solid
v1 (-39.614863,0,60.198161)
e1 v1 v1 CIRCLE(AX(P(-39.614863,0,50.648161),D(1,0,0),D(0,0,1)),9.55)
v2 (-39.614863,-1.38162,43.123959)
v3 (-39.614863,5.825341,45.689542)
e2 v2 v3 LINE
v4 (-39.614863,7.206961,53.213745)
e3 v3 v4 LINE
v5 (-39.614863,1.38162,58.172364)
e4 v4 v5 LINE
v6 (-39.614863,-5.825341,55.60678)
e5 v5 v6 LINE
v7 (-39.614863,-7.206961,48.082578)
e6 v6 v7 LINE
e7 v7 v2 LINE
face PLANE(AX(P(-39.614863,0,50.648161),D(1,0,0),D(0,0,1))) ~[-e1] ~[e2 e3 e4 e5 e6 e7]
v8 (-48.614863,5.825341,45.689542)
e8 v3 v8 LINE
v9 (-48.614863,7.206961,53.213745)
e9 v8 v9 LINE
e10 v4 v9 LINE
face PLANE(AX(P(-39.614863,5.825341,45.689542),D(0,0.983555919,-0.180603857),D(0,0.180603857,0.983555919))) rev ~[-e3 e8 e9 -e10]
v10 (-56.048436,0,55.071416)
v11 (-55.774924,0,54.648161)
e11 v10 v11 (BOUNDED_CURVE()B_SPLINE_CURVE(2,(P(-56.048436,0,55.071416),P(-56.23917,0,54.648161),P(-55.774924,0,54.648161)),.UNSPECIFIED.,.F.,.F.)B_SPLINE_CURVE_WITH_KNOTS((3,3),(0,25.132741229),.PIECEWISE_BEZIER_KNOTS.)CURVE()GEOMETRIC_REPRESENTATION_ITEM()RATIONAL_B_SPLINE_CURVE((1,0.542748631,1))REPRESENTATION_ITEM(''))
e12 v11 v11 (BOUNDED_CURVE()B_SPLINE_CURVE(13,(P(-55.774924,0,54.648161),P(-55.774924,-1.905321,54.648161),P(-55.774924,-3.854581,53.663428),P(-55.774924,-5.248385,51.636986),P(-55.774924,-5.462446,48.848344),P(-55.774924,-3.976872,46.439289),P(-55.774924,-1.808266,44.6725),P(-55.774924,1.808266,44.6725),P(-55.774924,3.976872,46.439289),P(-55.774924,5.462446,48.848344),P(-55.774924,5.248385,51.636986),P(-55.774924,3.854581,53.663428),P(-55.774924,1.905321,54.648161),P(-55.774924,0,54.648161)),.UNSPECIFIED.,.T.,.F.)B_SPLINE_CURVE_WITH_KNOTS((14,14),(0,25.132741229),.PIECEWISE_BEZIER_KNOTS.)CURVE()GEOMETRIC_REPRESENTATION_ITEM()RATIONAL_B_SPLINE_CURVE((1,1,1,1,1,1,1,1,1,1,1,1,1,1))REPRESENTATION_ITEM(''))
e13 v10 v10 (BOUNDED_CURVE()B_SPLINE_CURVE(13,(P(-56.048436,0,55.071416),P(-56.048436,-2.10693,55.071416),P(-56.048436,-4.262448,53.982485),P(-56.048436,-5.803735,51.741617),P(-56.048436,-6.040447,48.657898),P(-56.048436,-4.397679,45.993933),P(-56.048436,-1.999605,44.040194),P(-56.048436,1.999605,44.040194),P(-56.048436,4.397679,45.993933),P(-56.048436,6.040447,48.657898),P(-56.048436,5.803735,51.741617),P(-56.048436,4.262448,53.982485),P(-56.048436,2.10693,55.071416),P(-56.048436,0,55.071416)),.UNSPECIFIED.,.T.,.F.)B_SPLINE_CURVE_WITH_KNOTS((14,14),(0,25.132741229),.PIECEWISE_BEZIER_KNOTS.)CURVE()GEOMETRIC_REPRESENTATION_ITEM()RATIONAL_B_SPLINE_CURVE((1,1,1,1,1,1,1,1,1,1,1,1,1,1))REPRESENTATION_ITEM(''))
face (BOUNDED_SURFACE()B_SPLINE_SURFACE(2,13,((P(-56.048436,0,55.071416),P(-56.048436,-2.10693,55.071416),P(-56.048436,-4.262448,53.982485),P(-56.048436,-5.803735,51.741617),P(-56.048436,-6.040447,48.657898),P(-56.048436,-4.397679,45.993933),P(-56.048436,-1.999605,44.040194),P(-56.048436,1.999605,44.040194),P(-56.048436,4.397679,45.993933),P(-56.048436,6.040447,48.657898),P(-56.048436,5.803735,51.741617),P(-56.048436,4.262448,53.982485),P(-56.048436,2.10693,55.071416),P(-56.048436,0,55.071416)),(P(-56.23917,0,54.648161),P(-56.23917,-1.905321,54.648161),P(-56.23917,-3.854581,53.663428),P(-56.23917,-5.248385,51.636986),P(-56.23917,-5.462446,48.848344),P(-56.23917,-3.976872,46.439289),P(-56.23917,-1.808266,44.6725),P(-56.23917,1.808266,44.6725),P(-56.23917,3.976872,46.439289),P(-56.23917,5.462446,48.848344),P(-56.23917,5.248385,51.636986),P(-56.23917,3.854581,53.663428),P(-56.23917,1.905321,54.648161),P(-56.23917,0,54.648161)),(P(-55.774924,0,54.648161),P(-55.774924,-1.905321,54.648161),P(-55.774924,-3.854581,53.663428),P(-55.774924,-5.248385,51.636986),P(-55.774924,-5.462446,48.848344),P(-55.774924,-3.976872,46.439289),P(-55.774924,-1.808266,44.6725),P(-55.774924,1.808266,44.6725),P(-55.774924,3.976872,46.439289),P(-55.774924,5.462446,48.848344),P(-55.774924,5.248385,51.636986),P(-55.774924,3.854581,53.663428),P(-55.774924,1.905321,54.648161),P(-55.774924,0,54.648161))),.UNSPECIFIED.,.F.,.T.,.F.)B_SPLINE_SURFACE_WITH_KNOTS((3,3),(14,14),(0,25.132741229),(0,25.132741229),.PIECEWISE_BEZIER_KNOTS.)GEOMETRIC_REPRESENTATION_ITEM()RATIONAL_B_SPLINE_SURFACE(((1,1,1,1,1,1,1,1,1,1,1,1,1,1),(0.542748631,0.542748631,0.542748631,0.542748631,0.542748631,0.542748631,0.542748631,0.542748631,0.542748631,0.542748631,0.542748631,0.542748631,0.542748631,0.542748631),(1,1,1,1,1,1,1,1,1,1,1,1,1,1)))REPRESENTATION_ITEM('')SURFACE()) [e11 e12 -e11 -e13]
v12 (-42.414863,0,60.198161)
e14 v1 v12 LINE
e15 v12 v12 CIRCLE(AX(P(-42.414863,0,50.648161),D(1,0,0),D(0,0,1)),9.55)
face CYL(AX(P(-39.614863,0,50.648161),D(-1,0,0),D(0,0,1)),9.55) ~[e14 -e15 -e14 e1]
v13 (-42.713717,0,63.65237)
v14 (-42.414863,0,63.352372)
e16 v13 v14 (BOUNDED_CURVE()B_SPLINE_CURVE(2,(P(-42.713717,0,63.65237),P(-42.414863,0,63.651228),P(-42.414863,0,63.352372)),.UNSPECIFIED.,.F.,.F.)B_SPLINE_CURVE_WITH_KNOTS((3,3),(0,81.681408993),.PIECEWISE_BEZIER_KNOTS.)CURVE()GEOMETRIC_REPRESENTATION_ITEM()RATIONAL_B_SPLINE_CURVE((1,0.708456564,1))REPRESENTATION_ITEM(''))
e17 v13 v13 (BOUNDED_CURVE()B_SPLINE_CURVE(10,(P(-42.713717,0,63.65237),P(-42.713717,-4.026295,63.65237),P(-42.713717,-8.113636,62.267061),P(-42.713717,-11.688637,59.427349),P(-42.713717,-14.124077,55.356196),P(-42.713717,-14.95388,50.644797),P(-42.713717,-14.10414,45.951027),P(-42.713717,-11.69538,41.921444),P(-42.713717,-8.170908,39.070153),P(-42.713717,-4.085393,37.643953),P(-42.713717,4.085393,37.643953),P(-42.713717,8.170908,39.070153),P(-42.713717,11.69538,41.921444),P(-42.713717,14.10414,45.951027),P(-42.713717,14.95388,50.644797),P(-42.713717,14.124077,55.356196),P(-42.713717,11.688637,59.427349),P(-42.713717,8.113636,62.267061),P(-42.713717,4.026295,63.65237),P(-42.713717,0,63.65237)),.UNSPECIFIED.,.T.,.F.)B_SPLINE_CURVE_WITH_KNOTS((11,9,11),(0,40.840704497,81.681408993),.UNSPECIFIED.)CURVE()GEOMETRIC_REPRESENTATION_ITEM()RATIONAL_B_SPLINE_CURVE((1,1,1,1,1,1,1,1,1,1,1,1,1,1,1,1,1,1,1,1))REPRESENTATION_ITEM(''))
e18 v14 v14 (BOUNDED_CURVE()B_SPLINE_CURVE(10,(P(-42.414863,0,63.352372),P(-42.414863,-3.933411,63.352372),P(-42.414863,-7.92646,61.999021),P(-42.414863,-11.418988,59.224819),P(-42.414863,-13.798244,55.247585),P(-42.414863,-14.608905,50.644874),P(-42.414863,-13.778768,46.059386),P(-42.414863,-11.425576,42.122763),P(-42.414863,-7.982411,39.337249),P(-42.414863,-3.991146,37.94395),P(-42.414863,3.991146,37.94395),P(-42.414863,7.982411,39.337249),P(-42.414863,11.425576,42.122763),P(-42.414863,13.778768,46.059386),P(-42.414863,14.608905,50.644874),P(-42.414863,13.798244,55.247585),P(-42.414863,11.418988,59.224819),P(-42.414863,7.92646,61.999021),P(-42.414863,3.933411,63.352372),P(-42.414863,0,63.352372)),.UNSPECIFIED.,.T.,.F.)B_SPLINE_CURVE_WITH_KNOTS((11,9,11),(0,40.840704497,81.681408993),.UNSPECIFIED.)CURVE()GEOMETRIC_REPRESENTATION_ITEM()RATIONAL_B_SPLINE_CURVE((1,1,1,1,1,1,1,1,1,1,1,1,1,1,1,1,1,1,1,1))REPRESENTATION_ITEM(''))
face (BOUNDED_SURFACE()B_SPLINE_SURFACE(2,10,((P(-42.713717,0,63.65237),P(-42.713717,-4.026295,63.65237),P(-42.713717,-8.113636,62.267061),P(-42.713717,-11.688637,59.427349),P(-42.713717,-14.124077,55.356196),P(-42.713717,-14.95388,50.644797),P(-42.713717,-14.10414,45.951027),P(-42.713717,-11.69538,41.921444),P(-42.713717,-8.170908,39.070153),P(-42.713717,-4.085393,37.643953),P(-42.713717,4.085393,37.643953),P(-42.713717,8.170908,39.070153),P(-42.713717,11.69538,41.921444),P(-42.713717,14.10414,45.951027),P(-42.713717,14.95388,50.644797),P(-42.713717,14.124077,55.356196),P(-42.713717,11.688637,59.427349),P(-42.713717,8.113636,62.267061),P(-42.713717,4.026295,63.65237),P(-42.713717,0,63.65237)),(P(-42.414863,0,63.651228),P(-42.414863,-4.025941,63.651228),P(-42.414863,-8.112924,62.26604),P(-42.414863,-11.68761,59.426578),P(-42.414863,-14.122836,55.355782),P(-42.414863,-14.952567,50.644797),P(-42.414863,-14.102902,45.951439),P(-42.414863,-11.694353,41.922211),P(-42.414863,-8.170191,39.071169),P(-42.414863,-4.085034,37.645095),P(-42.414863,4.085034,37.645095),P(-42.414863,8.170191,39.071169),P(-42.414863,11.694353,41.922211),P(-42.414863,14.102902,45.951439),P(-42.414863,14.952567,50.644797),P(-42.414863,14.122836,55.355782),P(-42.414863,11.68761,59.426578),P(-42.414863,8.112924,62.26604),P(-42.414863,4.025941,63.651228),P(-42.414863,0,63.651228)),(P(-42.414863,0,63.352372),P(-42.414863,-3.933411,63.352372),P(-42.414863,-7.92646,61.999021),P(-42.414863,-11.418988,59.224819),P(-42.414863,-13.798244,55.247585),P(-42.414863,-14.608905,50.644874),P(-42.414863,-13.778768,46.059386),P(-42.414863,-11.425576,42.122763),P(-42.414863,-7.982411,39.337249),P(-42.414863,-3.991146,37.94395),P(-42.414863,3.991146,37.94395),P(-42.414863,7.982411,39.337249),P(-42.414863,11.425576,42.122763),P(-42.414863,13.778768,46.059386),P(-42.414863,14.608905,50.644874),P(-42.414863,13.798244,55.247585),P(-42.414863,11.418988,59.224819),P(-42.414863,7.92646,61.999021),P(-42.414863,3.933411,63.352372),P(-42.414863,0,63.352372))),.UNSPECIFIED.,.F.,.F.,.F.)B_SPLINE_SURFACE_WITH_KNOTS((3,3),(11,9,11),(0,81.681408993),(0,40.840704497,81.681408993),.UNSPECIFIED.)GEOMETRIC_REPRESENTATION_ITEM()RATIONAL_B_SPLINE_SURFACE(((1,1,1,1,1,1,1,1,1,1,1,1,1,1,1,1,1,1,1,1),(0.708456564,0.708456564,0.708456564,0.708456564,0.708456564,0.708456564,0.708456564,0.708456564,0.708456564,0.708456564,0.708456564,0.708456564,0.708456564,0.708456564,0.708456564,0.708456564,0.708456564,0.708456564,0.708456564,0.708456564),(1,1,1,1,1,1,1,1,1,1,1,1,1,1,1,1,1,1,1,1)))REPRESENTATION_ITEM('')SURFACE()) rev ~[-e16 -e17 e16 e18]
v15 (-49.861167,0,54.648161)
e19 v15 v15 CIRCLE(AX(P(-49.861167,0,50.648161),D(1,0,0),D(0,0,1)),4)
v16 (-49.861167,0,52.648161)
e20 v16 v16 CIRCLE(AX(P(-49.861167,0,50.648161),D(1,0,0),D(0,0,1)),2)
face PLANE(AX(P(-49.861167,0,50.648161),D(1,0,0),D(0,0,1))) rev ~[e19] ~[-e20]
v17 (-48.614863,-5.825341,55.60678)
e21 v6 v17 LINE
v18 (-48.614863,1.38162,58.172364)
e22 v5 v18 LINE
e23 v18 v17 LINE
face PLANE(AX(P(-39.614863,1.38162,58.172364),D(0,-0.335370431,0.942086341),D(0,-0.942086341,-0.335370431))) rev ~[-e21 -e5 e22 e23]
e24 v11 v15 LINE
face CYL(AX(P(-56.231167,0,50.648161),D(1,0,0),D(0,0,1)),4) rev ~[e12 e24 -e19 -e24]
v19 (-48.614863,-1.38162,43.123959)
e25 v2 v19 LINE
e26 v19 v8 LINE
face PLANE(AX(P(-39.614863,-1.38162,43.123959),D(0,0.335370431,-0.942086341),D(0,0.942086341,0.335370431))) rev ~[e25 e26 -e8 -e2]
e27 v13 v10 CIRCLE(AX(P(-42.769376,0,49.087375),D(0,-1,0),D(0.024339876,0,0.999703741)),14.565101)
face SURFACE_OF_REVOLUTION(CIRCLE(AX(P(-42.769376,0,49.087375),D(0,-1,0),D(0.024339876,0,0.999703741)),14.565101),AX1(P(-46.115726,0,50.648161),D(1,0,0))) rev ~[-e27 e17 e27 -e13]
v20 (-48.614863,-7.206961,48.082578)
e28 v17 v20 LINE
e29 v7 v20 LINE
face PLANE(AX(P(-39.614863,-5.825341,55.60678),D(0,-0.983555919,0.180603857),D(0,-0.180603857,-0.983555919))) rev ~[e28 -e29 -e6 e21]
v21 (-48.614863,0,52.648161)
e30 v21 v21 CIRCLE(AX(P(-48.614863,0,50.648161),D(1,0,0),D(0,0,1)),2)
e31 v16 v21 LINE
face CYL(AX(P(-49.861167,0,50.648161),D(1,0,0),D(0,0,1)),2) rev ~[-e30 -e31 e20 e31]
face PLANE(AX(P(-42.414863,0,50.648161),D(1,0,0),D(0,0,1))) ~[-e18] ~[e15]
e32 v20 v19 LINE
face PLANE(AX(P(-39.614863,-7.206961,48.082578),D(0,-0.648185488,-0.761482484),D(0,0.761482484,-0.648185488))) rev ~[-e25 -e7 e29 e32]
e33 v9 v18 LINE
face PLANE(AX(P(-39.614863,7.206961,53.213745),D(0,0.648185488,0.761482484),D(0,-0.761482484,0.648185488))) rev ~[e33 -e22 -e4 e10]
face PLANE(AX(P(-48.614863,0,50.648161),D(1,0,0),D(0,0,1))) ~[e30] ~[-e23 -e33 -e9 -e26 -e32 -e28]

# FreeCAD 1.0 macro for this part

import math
import FreeCAD as App
import Part
import Sketcher
from FreeCAD import Vector
Q = App.Units.Quantity


def edges_at(feature, points):
    """Names of the edges that pass closest to the given points."""
    edges = feature.Shape.Edges
    near = lambda p: min(range(len(edges)), key=lambda i: edges[i].distToShape(Part.Vertex(*p))[0])
    return sorted({f"Edge{near(p) + 1}" for p in points})


def add_polygon(sketch, points):
    """Adds a closed chain of lines whose ends are joined by coincident constraints."""
    first, n = sketch.GeometryCount, len(points)
    for a, b in zip(points, points[1:] + points[:1]):
        sketch.addGeometry(Part.LineSegment(App.Vector(*a, 0), App.Vector(*b, 0)), False)
    for i in range(n):
        sketch.addConstraint(Sketcher.Constraint("Coincident", first + i, 2, first + (i + 1) % n, 1))

doc = App.newDocument("Part")
body = doc.addObject("PartDesign::Body", "Body")

# Sketch on XZ plane
sketch1 = doc.addObject("Sketcher::SketchObject", "Sketch")
body.addObject(sketch1)
sketch1.AttachmentSupport = (doc.XZ_Plane, [""])
sketch1.MapMode = "FlatFace"
sketch1.addGeometry([
    Part.ArcOfCircle(Part.Circle(Vector(-42.769376, 49.087375, 0), Vector(0, 0, 1), 14.565101), math.radians(88.60529), math.radians(157.555498)),  # 0
    Part.LineSegment(Vector(-56.231167, 54.648161, 0), Vector(-49.861167, 54.648161, 0)),  # 1
    Part.LineSegment(Vector(-49.861167, 54.648161, 0), Vector(-49.861167, 52.648161, 0)),  # 2
    Part.LineSegment(Vector(-49.861167, 52.648161, 0), Vector(-48.614863, 52.648161, 0)),  # 3
    Part.LineSegment(Vector(-48.614863, 52.648161, 0), Vector(-48.614863, 54.298161, 0)),  # 4
    Part.LineSegment(Vector(-48.614863, 54.298161, 0), Vector(-39.614863, 54.298161, 0)),  # 5
    Part.LineSegment(Vector(-39.614863, 54.298161, 0), Vector(-39.614863, 60.198161, 0)),  # 6
    Part.LineSegment(Vector(-39.614863, 60.198161, 0), Vector(-42.414863, 60.198161, 0)),  # 7
    Part.LineSegment(Vector(-42.414863, 60.198161, 0), Vector(-42.414863, 63.648161, 0)),  # 8
], False)
sketch1.addGeometry(Part.LineSegment(Vector(-56.231167, 50.648161, 0), Vector(-39.614863, 50.648161, 0)), True)  # axis
sketch1.addConstraint([
    Sketcher.Constraint("Coincident", 0, 2, 1, 1),
    Sketcher.Constraint("Coincident", 1, 2, 2, 1),
    Sketcher.Constraint("Coincident", 2, 2, 3, 1),
    Sketcher.Constraint("Coincident", 3, 2, 4, 1),
    Sketcher.Constraint("Coincident", 4, 2, 5, 1),
    Sketcher.Constraint("Coincident", 5, 2, 6, 1),
    Sketcher.Constraint("Coincident", 6, 2, 7, 1),
    Sketcher.Constraint("Coincident", 7, 2, 8, 1),
    Sketcher.Constraint("Coincident", 8, 2, 0, 1),
    Sketcher.Constraint("Horizontal", 1),
    Sketcher.Constraint("Vertical", 2),
    Sketcher.Constraint("Horizontal", 3),
    Sketcher.Constraint("Vertical", 4),
    Sketcher.Constraint("Horizontal", 5),
    Sketcher.Constraint("Vertical", 6),
    Sketcher.Constraint("Horizontal", 7),
    Sketcher.Constraint("Vertical", 8),
    Sketcher.Constraint("Horizontal", 9),
    Sketcher.Constraint("Vertical", 0, 2, 9, 1),
    Sketcher.Constraint("Vertical", 6, 2, 9, 2),
    Sketcher.Constraint("DistanceX", 5, 1, 5, 2, Q("9 mm")),
    Sketcher.Constraint("DistanceY", 2, 2, 2, 1, Q("2 mm")),
    Sketcher.Constraint("DistanceX", 7, 2, 7, 1, Q("2.8 mm")),
    Sketcher.Constraint("DistanceY", 6, 1, 6, 2, Q("5.9 mm")),
    Sketcher.Constraint("DistanceY", 1, 2, 8, 2, Q("9 mm")),
    Sketcher.Constraint("DistanceY", 9, 1, 0, 2, Q("4 mm")),
    Sketcher.Constraint("DistanceX", 1, 1, 1, 2, Q("6.37 mm")),
    Sketcher.Constraint("DistanceY", 4, 1, 4, 2, Q("1.65 mm")),
    Sketcher.Constraint("Radius", 0, Q("14.565101 mm")),
    Sketcher.Constraint("DistanceX", 3, 1, 3, 2, Q("1.246304 mm")),
    Sketcher.Constraint("DistanceY", -1, 1, 0, 2, Q("54.648161 mm")),
    Sketcher.Constraint("DistanceX", 0, 3, -1, 1, Q("42.769376 mm")),
])
revolution = doc.addObject("PartDesign::Revolution", "Revolution")
body.addObject(revolution)
revolution.Profile = sketch1
revolution.ReferenceAxis = (sketch1, ["Axis0"])
revolution.Angle = 360

# Sketch on YZ plane
sketch2 = doc.addObject("Sketcher::SketchObject", "Sketch001")
body.addObject(sketch2)
sketch2.AttachmentSupport = (doc.YZ_Plane, [""])
sketch2.MapMode = "FlatFace"
sketch2.AttachmentOffset = App.Placement(Vector(0, 0, -39.614863), App.Rotation())
add_polygon(sketch2, [(5.825341, 45.689542), (7.206961, 53.213745), (1.38162, 58.172364), (-5.825341, 55.60678), (-7.206961, 48.082578), (-1.38162, 43.123959)])  # lines 0-5
sketch2.addGeometry(Part.Circle(Vector(0, 50.648161, 0), Vector(0, 0, 1), 3.65), False)  # 6
sketch2.addConstraint([
    Sketcher.Constraint("PointOnObject", 6, 3, -2),
    Sketcher.Constraint("Parallel", 0, 3),
    Sketcher.Constraint("Parallel", 1, 4),
    Sketcher.Constraint("Parallel", 2, 5),
    Sketcher.Constraint("Equal", 0, 1),
    Sketcher.Constraint("Equal", 1, 2),
    Sketcher.Constraint("Equal", 2, 3),
    Sketcher.Constraint("Diameter", 6, Q("7.3 mm")),
    Sketcher.Constraint("Distance", 0, Q("7.65 mm")),
    Sketcher.Constraint("DistanceX", 2, 2, 0, 2, Q("13.032302 mm")),
    Sketcher.Constraint("DistanceY", -1, 1, 6, 3, Q("50.648161 mm")),
    Sketcher.Constraint("DistanceX", -1, 1, 0, 2, Q("7.206961 mm")),
    Sketcher.Constraint("DistanceX", -1, 1, 1, 2, Q("1.38162 mm")),
    Sketcher.Constraint("DistanceY", -1, 1, 2, 2, Q("55.60678 mm")),
    Sketcher.Constraint("DistanceX", 3, 2, -1, 1, Q("7.206961 mm")),
])
pocket1 = doc.addObject("PartDesign::Pocket", "Pocket")
body.addObject(pocket1)
pocket1.Profile = sketch2
pocket1.Length = 9
doc.recompute()

fillet = doc.addObject("PartDesign::Fillet", "Fillet")
body.addObject(fillet)
fillet.Base = (pocket1, edges_at(pocket1, [(-56.231, 0, 46.648), (-42.415, 0, 37.648), (-50.719, 0, 61.292)]))
fillet.Radius = 0.3

doc.recompute()
